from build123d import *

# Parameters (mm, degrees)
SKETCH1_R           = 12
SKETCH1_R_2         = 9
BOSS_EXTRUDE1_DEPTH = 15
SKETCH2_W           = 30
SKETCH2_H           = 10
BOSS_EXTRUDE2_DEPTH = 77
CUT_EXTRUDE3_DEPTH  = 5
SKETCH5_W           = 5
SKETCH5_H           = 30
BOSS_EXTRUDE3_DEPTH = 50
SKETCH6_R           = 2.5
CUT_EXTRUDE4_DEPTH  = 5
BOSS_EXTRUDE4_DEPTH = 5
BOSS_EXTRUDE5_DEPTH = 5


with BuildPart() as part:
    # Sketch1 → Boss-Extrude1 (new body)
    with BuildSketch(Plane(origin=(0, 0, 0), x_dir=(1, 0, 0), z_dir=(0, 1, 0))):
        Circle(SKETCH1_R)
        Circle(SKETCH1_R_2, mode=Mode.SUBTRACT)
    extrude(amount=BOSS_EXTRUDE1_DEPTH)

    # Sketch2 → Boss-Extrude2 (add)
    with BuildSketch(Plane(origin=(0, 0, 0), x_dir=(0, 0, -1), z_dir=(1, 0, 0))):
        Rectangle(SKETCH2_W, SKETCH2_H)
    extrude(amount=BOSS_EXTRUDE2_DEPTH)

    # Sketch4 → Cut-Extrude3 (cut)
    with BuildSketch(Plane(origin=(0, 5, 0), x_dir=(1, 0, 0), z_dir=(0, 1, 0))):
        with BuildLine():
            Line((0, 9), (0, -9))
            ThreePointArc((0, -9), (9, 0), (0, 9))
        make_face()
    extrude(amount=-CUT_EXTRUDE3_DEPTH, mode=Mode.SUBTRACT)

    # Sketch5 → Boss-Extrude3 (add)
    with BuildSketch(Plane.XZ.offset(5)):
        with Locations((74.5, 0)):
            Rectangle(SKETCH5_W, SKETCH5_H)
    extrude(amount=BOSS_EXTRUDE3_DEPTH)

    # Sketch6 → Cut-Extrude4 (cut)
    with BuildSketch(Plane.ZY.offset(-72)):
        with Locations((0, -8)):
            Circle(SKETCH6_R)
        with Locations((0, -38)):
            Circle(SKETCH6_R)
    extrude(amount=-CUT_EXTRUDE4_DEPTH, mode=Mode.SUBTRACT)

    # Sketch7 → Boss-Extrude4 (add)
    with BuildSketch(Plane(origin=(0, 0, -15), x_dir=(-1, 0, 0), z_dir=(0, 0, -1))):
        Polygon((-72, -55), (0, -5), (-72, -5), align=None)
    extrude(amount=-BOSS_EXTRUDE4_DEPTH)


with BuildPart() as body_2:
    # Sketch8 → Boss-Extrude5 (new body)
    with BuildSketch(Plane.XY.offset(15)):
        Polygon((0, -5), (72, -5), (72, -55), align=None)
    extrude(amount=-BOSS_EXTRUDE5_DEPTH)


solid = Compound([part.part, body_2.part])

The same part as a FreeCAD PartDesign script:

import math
import FreeCAD as App
import Part
import Sketcher


def add_polygon(sketch, points):
    """Adds a closed chain of lines whose ends are joined by coincident constraints."""
    first, n = sketch.GeometryCount, len(points)
    for a, b in zip(points, points[1:] + points[:1]):
        sketch.addGeometry(Part.LineSegment(App.Vector(*a, 0), App.Vector(*b, 0)), False)
    for i in range(n):
        sketch.addConstraint(Sketcher.Constraint("Coincident", first + i, 2, first + (i + 1) % n, 1))

doc = App.newDocument("Part")
body = doc.addObject("PartDesign::Body", "Body")

# Sketch on XZ plane
sketch1 = body.newObject("Sketcher::SketchObject", "Sketch")
sketch1.AttachmentSupport = (doc.getObject("XZ_Plane"), [""])
sketch1.MapMode = "FlatFace"
sketch1.addGeometry([
    Part.Circle(App.Vector(0, 0, 0), App.Vector(0, 0, 1), 12),
    Part.Circle(App.Vector(0, 0, 0), App.Vector(0, 0, 1), 9),
], False)
sketch1.addConstraint([
    Sketcher.Constraint("Coincident", 0, 3, -1, 1),
    Sketcher.Constraint("Coincident", 1, 3, -1, 1),
    Sketcher.Constraint("Diameter", 0, 24.0),
    Sketcher.Constraint("Diameter", 1, 18.0),
])
pad1 = body.newObject("PartDesign::Pad", "Pad")
pad1.Profile = sketch1
pad1.Length = 15
pad1.Reversed = True

# Sketch on YZ plane
sketch2 = body.newObject("Sketcher::SketchObject", "Sketch001")
sketch2.AttachmentSupport = (doc.getObject("YZ_Plane"), [""])
sketch2.MapMode = "FlatFace"
add_polygon(sketch2, [(5, 15), (-5, 15), (-5, -15), (5, -15)])  # lines 0-3
sketch2.addConstraint([
    Sketcher.Constraint("Horizontal", 0),
    Sketcher.Constraint("Vertical", 1),
    Sketcher.Constraint("Horizontal", 2),
    Sketcher.Constraint("Vertical", 3),
    Sketcher.Constraint("Symmetric", 0, 2, 2, 2, -1, 1),
    Sketcher.Constraint("DistanceX", 0, 2, 0, 1, 10.0),
    Sketcher.Constraint("DistanceY", 1, 2, 1, 1, 30.0),
])
pad2 = body.newObject("PartDesign::Pad", "Pad001")
pad2.Profile = sketch2
pad2.Length = 77

# Sketch on XZ plane
sketch3 = body.newObject("Sketcher::SketchObject", "Sketch002")
sketch3.AttachmentSupport = (doc.getObject("XZ_Plane"), [""])
sketch3.MapMode = "FlatFace"
sketch3.AttachmentOffset = App.Placement(App.Vector(0, 0, -5), App.Rotation())
sketch3.addGeometry([
    Part.LineSegment(App.Vector(0, -9, 0), App.Vector(0, 9, 0)),
    Part.ArcOfCircle(Part.Circle(App.Vector(0, 0, 0), App.Vector(0, 0, 1), 9), math.radians(-90), math.radians(90)),
], False)
sketch3.addConstraint([
    Sketcher.Constraint("Coincident", 0, 1, 1, 1),
    Sketcher.Constraint("Coincident", 1, 2, 0, 2),
    Sketcher.Constraint("Vertical", 0),
    Sketcher.Constraint("Coincident", 1, 3, -1, 1),
    Sketcher.Constraint("PointOnObject", 0, 1, -2),
    Sketcher.Constraint("Radius", 1, 9.0),
])
pocket1 = body.newObject("PartDesign::Pocket", "Pocket")
pocket1.Profile = sketch3
pocket1.Length = 5
pocket1.Reversed = True

# Sketch on XZ plane
sketch4 = body.newObject("Sketcher::SketchObject", "Sketch003")
sketch4.AttachmentSupport = (doc.getObject("XZ_Plane"), [""])
sketch4.MapMode = "FlatFace"
sketch4.AttachmentOffset = App.Placement(App.Vector(0, 0, 5), App.Rotation())
add_polygon(sketch4, [(72, 15), (72, -15), (77, -15), (77, 15)])  # lines 0-3
sketch4.addConstraint([
    Sketcher.Constraint("Vertical", 0),
    Sketcher.Constraint("Horizontal", 1),
    Sketcher.Constraint("Vertical", 2),
    Sketcher.Constraint("Horizontal", 3),
    Sketcher.Constraint("DistanceX", 1, 1, 1, 2, 5.0),
    Sketcher.Constraint("DistanceY", 0, 2, 0, 1, 30.0),
    Sketcher.Constraint("DistanceX", -1, 1, 0, 2, 72.0),
    Sketcher.Constraint("DistanceY", 0, 2, -1, 1, 15.0),
])
pad3 = body.newObject("PartDesign::Pad", "Pad002")
pad3.Profile = sketch4
pad3.Length = 50

# Sketch on YZ plane
sketch5 = body.newObject("Sketcher::SketchObject", "Sketch004")
sketch5.AttachmentSupport = (doc.getObject("YZ_Plane"), [""])
sketch5.MapMode = "FlatFace"
sketch5.AttachmentOffset = App.Placement(App.Vector(0, 0, 72), App.Rotation())
sketch5.addGeometry([
    Part.Circle(App.Vector(-8, 0, 0), App.Vector(0, 0, 1), 2.5),
    Part.Circle(App.Vector(-38, 0, 0), App.Vector(0, 0, 1), 2.5),
], False)
sketch5.addConstraint([
    Sketcher.Constraint("Equal", 0, 1),
    Sketcher.Constraint("PointOnObject", 0, 3, -1),
    Sketcher.Constraint("PointOnObject", 1, 3, -1),
    Sketcher.Constraint("Diameter", 0, 5.0),
    Sketcher.Constraint("DistanceX", 0, 3, -1, 1, 8.0),
    Sketcher.Constraint("DistanceX", 1, 3, -1, 1, 38.0),
])
pocket2 = body.newObject("PartDesign::Pocket", "Pocket001")
pocket2.Profile = sketch5
pocket2.Length = 5
pocket2.Reversed = True

# Sketch on XY plane
sketch6 = body.newObject("Sketcher::SketchObject", "Sketch005")
sketch6.AttachmentSupport = (doc.getObject("XY_Plane"), [""])
sketch6.MapMode = "FlatFace"
sketch6.AttachmentOffset = App.Placement(App.Vector(0, 0, -15), App.Rotation())
add_polygon(sketch6, [(72, -55), (0, -5), (72, -5)])  # lines 0-2
sketch6.addConstraint([
    Sketcher.Constraint("Horizontal", 1),
    Sketcher.Constraint("Vertical", 2),
    Sketcher.Constraint("PointOnObject", 0, 2, -2),
    Sketcher.Constraint("DistanceX", 1, 1, 1, 2, 72.0),
    Sketcher.Constraint("DistanceY", 2, 2, 2, 1, 50.0),
    Sketcher.Constraint("DistanceY", 0, 2, -1, 1, 5.0),
])
pad4 = body.newObject("PartDesign::Pad", "Pad003")
pad4.Profile = sketch6
pad4.Length = 5
body2 = doc.addObject("PartDesign::Body", "Body001")

# Sketch on XY plane
sketch7 = body2.newObject("Sketcher::SketchObject", "Sketch006")
sketch7.AttachmentSupport = (doc.getObject("XY_Plane001"), [""])
sketch7.MapMode = "FlatFace"
sketch7.AttachmentOffset = App.Placement(App.Vector(0, 0, 15), App.Rotation())
add_polygon(sketch7, [(72, -5), (0, -5), (72, -55)])  # lines 0-2
sketch7.addConstraint([
    Sketcher.Constraint("Horizontal", 0),
    Sketcher.Constraint("Vertical", 2),
    Sketcher.Constraint("PointOnObject", 0, 2, -2),
    Sketcher.Constraint("DistanceX", 0, 2, 0, 1, 72.0),
    Sketcher.Constraint("DistanceY", 2, 1, 2, 2, 50.0),
    Sketcher.Constraint("DistanceY", 0, 2, -1, 1, 5.0),
])
pad5 = body2.newObject("PartDesign::Pad", "Pad004")
pad5.Profile = sketch7
pad5.Length = 5
pad5.Reversed = True

doc.recompute()
